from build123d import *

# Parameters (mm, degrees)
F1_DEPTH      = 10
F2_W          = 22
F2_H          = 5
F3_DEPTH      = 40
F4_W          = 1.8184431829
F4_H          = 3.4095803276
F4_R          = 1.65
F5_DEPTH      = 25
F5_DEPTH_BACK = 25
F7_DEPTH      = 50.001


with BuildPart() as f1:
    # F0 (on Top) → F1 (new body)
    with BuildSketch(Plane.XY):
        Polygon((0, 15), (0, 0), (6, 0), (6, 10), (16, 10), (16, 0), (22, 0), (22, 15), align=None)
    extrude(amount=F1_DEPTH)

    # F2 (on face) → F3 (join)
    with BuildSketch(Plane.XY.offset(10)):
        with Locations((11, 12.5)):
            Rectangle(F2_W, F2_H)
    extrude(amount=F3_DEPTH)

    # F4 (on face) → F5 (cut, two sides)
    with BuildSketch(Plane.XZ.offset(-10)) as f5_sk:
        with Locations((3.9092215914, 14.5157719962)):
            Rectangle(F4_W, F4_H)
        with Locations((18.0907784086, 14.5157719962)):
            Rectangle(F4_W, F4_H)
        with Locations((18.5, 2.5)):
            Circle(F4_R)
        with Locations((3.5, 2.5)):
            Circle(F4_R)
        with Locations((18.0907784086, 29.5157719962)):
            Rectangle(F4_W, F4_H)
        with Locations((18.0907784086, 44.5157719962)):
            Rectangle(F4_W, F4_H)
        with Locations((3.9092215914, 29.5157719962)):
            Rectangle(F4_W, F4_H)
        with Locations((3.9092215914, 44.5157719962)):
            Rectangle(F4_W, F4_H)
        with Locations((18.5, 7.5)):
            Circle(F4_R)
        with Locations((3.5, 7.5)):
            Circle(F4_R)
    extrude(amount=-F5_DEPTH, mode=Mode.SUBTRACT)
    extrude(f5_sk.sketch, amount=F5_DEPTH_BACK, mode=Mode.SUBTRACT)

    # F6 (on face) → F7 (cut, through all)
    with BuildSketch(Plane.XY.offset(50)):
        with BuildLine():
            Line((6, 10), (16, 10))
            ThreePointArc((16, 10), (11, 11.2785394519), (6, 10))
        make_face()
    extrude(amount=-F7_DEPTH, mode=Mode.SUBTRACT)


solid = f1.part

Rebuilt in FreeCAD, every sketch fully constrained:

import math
import FreeCAD as App
import Part
import Sketcher

doc = App.newDocument("Part")
body = doc.addObject("PartDesign::Body", "Body")

sketch1 = body.newObject("Sketcher::SketchObject", "Sketch")
sketch1.AttachmentSupport = (doc.getObject("XY_Plane"), [""])
sketch1.MapMode = "FlatFace"
sketch1.addGeometry([
    Part.LineSegment(App.Vector(0, 15, 0), App.Vector(0, 0, 0)),
    Part.LineSegment(App.Vector(0, 0, 0), App.Vector(6, 0, 0)),
    Part.LineSegment(App.Vector(6, 0, 0), App.Vector(6, 10, 0)),
    Part.LineSegment(App.Vector(6, 10, 0), App.Vector(16, 10, 0)),
    Part.LineSegment(App.Vector(16, 10, 0), App.Vector(16, 0, 0)),
    Part.LineSegment(App.Vector(16, 0, 0), App.Vector(22, 0, 0)),
    Part.LineSegment(App.Vector(22, 0, 0), App.Vector(22, 15, 0)),
    Part.LineSegment(App.Vector(22, 15, 0), App.Vector(0, 15, 0)),
], False)
sketch1.addConstraint([
    Sketcher.Constraint("Coincident", 0, 2, 1, 1),
    Sketcher.Constraint("Coincident", 1, 2, 2, 1),
    Sketcher.Constraint("Coincident", 2, 2, 3, 1),
    Sketcher.Constraint("Coincident", 3, 2, 4, 1),
    Sketcher.Constraint("Coincident", 4, 2, 5, 1),
    Sketcher.Constraint("Coincident", 5, 2, 6, 1),
    Sketcher.Constraint("Coincident", 6, 2, 7, 1),
    Sketcher.Constraint("Coincident", 7, 2, 0, 1),
    Sketcher.Constraint("Vertical", 0),
    Sketcher.Constraint("Horizontal", 1),
    Sketcher.Constraint("Vertical", 2),
    Sketcher.Constraint("Horizontal", 3),
    Sketcher.Constraint("Vertical", 4),
    Sketcher.Constraint("Horizontal", 5),
    Sketcher.Constraint("Vertical", 6),
    Sketcher.Constraint("Horizontal", 7),
    Sketcher.Constraint("Coincident", 0, 2, -1, 1),
    Sketcher.Constraint("PointOnObject", 4, 2, -1),
    Sketcher.Constraint("Equal", 1, 5),
    Sketcher.Constraint("Equal", 3, 2),
    Sketcher.Constraint("DistanceX", 1, 1, 1, 2, 6.0),
    Sketcher.Constraint("DistanceX", 3, 1, 3, 2, 10.0),
    Sketcher.Constraint("DistanceY", 0, 2, 0, 1, 15.0),
])
pad1 = body.newObject("PartDesign::Pad", "Pad")
pad1.Profile = sketch1
pad1.Length = 10

sketch2 = body.newObject("Sketcher::SketchObject", "Sketch001")
sketch2.AttachmentSupport = (doc.getObject("XY_Plane"), [""])
sketch2.MapMode = "FlatFace"
sketch2.AttachmentOffset = App.Placement(App.Vector(0, 0, 10), App.Rotation())
sketch2.addGeometry([
    Part.LineSegment(App.Vector(0, 15, 0), App.Vector(0, 10, 0)),
    Part.LineSegment(App.Vector(0, 10, 0), App.Vector(22, 10, 0)),
    Part.LineSegment(App.Vector(22, 10, 0), App.Vector(22, 15, 0)),
    Part.LineSegment(App.Vector(22, 15, 0), App.Vector(0, 15, 0)),
], False)
sketch2.addConstraint([
    Sketcher.Constraint("Coincident", 0, 2, 1, 1),
    Sketcher.Constraint("Coincident", 1, 2, 2, 1),
    Sketcher.Constraint("Coincident", 2, 2, 3, 1),
    Sketcher.Constraint("Coincident", 3, 2, 0, 1),
    Sketcher.Constraint("Vertical", 0),
    Sketcher.Constraint("Horizontal", 1),
    Sketcher.Constraint("Vertical", 2),
    Sketcher.Constraint("Horizontal", 3),
    Sketcher.Constraint("PointOnObject", 0, 2, -2),
    Sketcher.Constraint("DistanceX", 1, 1, 1, 2, 22.0),
    Sketcher.Constraint("DistanceY", 0, 2, 0, 1, 5.0),
    Sketcher.Constraint("DistanceY", -1, 1, 0, 2, 10.0),
])
pad2 = body.newObject("PartDesign::Pad", "Pad001")
pad2.Profile = sketch2
pad2.Length = 40

sketch3 = body.newObject("Sketcher::SketchObject", "Sketch002")
sketch3.AttachmentSupport = (doc.getObject("XZ_Plane"), [""])
sketch3.MapMode = "FlatFace"
sketch3.AttachmentOffset = App.Placement(App.Vector(0, 0, -10), App.Rotation())
sketch3.addGeometry([
    Part.LineSegment(App.Vector(3, 16.2, 0), App.Vector(3, 12.8, 0)),
    Part.LineSegment(App.Vector(3, 12.8, 0), App.Vector(4.8, 12.8, 0)),
    Part.LineSegment(App.Vector(4.8, 12.8, 0), App.Vector(4.8, 16.2, 0)),
    Part.LineSegment(App.Vector(4.8, 16.2, 0), App.Vector(3, 16.2, 0)),
    Part.LineSegment(App.Vector(17.2, 16.2, 0), App.Vector(17.2, 12.8, 0)),
    Part.LineSegment(App.Vector(17.2, 12.8, 0), App.Vector(19, 12.8, 0)),
    Part.LineSegment(App.Vector(19, 12.8, 0), App.Vector(19, 16.2, 0)),
    Part.LineSegment(App.Vector(19, 16.2, 0), App.Vector(17.2, 16.2, 0)),
    Part.Circle(App.Vector(18.5, 2.5, 0), App.Vector(0, 0, 1), 1.6),
    Part.Circle(App.Vector(3.5, 2.5, 0), App.Vector(0, 0, 1), 1.6),
    Part.LineSegment(App.Vector(17.2, 31.2, 0), App.Vector(17.2, 27.8, 0)),
    Part.LineSegment(App.Vector(17.2, 27.8, 0), App.Vector(19, 27.8, 0)),
    Part.LineSegment(App.Vector(19, 27.8, 0), App.Vector(19, 31.2, 0)),
    Part.LineSegment(App.Vector(19, 31.2, 0), App.Vector(17.2, 31.2, 0)),
    Part.LineSegment(App.Vector(17.2, 46.2, 0), App.Vector(17.2, 42.8, 0)),
    Part.LineSegment(App.Vector(17.2, 42.8, 0), App.Vector(19, 42.8, 0)),
    Part.LineSegment(App.Vector(19, 42.8, 0), App.Vector(19, 46.2, 0)),
    Part.LineSegment(App.Vector(19, 46.2, 0), App.Vector(17.2, 46.2, 0)),
    Part.LineSegment(App.Vector(3, 31.2, 0), App.Vector(3, 27.8, 0)),
    Part.LineSegment(App.Vector(3, 27.8, 0), App.Vector(4.8, 27.8, 0)),
    Part.LineSegment(App.Vector(4.8, 27.8, 0), App.Vector(4.8, 31.2, 0)),
    Part.LineSegment(App.Vector(4.8, 31.2, 0), App.Vector(3, 31.2, 0)),
    Part.LineSegment(App.Vector(3, 46.2, 0), App.Vector(3, 42.8, 0)),
    Part.LineSegment(App.Vector(3, 42.8, 0), App.Vector(4.8, 42.8, 0)),
    Part.LineSegment(App.Vector(4.8, 42.8, 0), App.Vector(4.8, 46.2, 0)),
    Part.LineSegment(App.Vector(4.8, 46.2, 0), App.Vector(3, 46.2, 0)),
    Part.Circle(App.Vector(18.5, 7.5, 0), App.Vector(0, 0, 1), 1.6),
    Part.Circle(App.Vector(3.5, 7.5, 0), App.Vector(0, 0, 1), 1.6),
], False)
sketch3.addConstraint([
    Sketcher.Constraint("Coincident", 0, 2, 1, 1),
    Sketcher.Constraint("Coincident", 1, 2, 2, 1),
    Sketcher.Constraint("Coincident", 2, 2, 3, 1),
    Sketcher.Constraint("Coincident", 3, 2, 0, 1),
    Sketcher.Constraint("Coincident", 4, 2, 5, 1),
    Sketcher.Constraint("Coincident", 5, 2, 6, 1),
    Sketcher.Constraint("Coincident", 6, 2, 7, 1),
    Sketcher.Constraint("Coincident", 7, 2, 4, 1),
    Sketcher.Constraint("Coincident", 10, 2, 11, 1),
    Sketcher.Constraint("Coincident", 11, 2, 12, 1),
    Sketcher.Constraint("Coincident", 12, 2, 13, 1),
    Sketcher.Constraint("Coincident", 13, 2, 10, 1),
    Sketcher.Constraint("Coincident", 14, 2, 15, 1),
    Sketcher.Constraint("Coincident", 15, 2, 16, 1),
    Sketcher.Constraint("Coincident", 16, 2, 17, 1),
    Sketcher.Constraint("Coincident", 17, 2, 14, 1),
    Sketcher.Constraint("Coincident", 18, 2, 19, 1),
    Sketcher.Constraint("Coincident", 19, 2, 20, 1),
    Sketcher.Constraint("Coincident", 20, 2, 21, 1),
    Sketcher.Constraint("Coincident", 21, 2, 18, 1),
    Sketcher.Constraint("Coincident", 22, 2, 23, 1),
    Sketcher.Constraint("Coincident", 23, 2, 24, 1),
    Sketcher.Constraint("Coincident", 24, 2, 25, 1),
    Sketcher.Constraint("Coincident", 25, 2, 22, 1),
    Sketcher.Constraint("Vertical", 0),
    Sketcher.Constraint("Horizontal", 1),
    Sketcher.Constraint("Vertical", 2),
    Sketcher.Constraint("Horizontal", 3),
    Sketcher.Constraint("Vertical", 4),
    Sketcher.Constraint("Horizontal", 5),
    Sketcher.Constraint("Vertical", 6),
    Sketcher.Constraint("Horizontal", 7),
    Sketcher.Constraint("Vertical", 10),
    Sketcher.Constraint("Horizontal", 11),
    Sketcher.Constraint("Vertical", 12),
    Sketcher.Constraint("Horizontal", 13),
    Sketcher.Constraint("Vertical", 14),
    Sketcher.Constraint("Horizontal", 15),
    Sketcher.Constraint("Vertical", 16),
    Sketcher.Constraint("Horizontal", 17),
    Sketcher.Constraint("Vertical", 18),
    Sketcher.Constraint("Horizontal", 19),
    Sketcher.Constraint("Vertical", 20),
    Sketcher.Constraint("Horizontal", 21),
    Sketcher.Constraint("Vertical", 22),
    Sketcher.Constraint("Horizontal", 23),
    Sketcher.Constraint("Vertical", 24),
    Sketcher.Constraint("Horizontal", 25),
    Sketcher.Constraint("Equal", 8, 9),
    Sketcher.Constraint("Equal", 9, 26),
    Sketcher.Constraint("Equal", 26, 27),
    Sketcher.Constraint("Horizontal", 8, 3, 9, 3),
    Sketcher.Constraint("Horizontal", 26, 3, 27, 3),
    Sketcher.Constraint("Horizontal", 1, 2, 4, 2),
    Sketcher.Constraint("Horizontal", 3, 2, 6, 2),
    Sketcher.Constraint("Horizontal", 11, 2, 18, 2),
    Sketcher.Constraint("Horizontal", 13, 2, 20, 2),
    Sketcher.Constraint("Horizontal", 15, 2, 22, 2),
    Sketcher.Constraint("Horizontal", 17, 2, 24, 2),
    Sketcher.Constraint("Vertical", 8, 3, 26, 3),
    Sketcher.Constraint("Vertical", 9, 3, 27, 3),
    Sketcher.Constraint("Vertical", 7, 2, 10, 2),
    Sketcher.Constraint("Vertical", 6, 2, 11, 2),
    Sketcher.Constraint("Vertical", 13, 2, 14, 2),
    Sketcher.Constraint("Vertical", 12, 2, 15, 2),
    Sketcher.Constraint("Vertical", 3, 2, 18, 2),
    Sketcher.Constraint("Vertical", 2, 2, 19, 2),
    Sketcher.Constraint("Vertical", 21, 2, 22, 2),
    Sketcher.Constraint("Vertical", 20, 2, 23, 2),
    Sketcher.Constraint("Equal", 3, 5),
    Sketcher.Constraint("Equal", 6, 10),
    Sketcher.Constraint("Equal", 12, 14),
    Sketcher.Constraint("Diameter", 8, 3.3),
    Sketcher.Constraint("DistanceX", -1, 1, 0, 2, 3.0),
    Sketcher.Constraint("DistanceX", -1, 1, 5, 2, 19.0),
    Sketcher.Constraint("DistanceX", 9, 3, 8, 3, 15.0),
    Sketcher.Constraint("DistanceY", 8, 3, 26, 3, 5.0),
    Sketcher.Constraint("DistanceY", 4, 2, 10, 2, 15.0),
    Sketcher.Constraint("DistanceY", 10, 2, 14, 2, 15.0),
    Sketcher.Constraint("DistanceX", -1, 1, 8, 3, 18.5),
    Sketcher.Constraint("DistanceY", -1, 1, 8, 3, 2.5),
    Sketcher.Constraint("DistanceY", 0, 2, 0, 1, 3.40958),
    Sketcher.Constraint("DistanceX", 1, 1, 1, 2, 1.818443),
    Sketcher.Constraint("DistanceY", -1, 1, 0, 2, 12.810982),
])
pocket1 = body.newObject("PartDesign::Pocket", "Pocket")
pocket1.Profile = sketch3
pocket1.Type = "ThroughAll"
pocket1.Midplane = True

sketch4 = body.newObject("Sketcher::SketchObject", "Sketch003")
sketch4.AttachmentSupport = (doc.getObject("XY_Plane"), [""])
sketch4.MapMode = "FlatFace"
sketch4.AttachmentOffset = App.Placement(App.Vector(0, 0, 50), App.Rotation())
sketch4.addGeometry([
    Part.LineSegment(App.Vector(6, 10, 0), App.Vector(16, 10, 0)),
    Part.ArcOfCircle(Part.Circle(App.Vector(11, 1, 0), App.Vector(0, 0, 1), 10), math.radians(61), math.radians(119)),
], False)
sketch4.addConstraint([
    Sketcher.Constraint("Coincident", 0, 1, 1, 2),
    Sketcher.Constraint("Coincident", 1, 1, 0, 2),
    Sketcher.Constraint("Horizontal", 0),
    Sketcher.Constraint("DistanceX", 0, 1, 0, 2, 10.0),
    Sketcher.Constraint("DistanceX", -1, 1, 1, 3, 11.0),
    Sketcher.Constraint("DistanceY", -1, 1, 0, 1, 10.0),
    Sketcher.Constraint("Radius", 1, 10.416051),
])
pocket2 = body.newObject("PartDesign::Pocket", "Pocket001")
pocket2.Profile = sketch4
pocket2.Type = "ThroughAll"

doc.recompute()
